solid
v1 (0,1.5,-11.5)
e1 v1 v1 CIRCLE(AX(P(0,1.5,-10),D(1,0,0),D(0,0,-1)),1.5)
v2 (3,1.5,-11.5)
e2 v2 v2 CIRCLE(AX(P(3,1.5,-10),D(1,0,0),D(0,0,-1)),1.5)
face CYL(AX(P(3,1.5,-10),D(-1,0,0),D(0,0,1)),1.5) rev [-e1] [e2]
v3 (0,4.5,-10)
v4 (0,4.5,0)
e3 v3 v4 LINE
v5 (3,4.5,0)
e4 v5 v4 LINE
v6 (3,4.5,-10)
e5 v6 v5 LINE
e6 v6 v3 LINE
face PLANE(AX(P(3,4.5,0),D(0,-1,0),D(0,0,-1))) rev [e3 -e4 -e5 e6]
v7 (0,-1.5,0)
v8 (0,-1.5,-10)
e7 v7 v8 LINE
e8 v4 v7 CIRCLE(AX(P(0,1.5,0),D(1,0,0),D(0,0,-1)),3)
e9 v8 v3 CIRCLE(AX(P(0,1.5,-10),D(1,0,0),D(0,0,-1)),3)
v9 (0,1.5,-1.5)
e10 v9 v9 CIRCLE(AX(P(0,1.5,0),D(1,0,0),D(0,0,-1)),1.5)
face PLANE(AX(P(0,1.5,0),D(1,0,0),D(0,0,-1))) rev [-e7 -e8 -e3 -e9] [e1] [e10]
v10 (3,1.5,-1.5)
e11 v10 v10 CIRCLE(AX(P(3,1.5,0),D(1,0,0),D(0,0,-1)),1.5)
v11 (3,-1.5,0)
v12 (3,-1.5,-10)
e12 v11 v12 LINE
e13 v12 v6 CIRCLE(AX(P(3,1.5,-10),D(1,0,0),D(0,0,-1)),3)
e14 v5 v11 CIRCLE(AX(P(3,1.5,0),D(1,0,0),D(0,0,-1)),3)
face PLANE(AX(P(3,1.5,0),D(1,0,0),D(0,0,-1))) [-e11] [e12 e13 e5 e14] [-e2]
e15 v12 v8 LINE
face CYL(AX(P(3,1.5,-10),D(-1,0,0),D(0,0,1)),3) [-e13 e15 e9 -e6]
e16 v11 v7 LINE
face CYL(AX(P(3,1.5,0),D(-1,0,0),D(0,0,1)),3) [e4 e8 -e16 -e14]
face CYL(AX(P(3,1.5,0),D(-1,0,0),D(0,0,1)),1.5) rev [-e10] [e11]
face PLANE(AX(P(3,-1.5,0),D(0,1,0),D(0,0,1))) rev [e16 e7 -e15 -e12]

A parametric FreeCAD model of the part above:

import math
import FreeCAD as App
import Part
import Sketcher

doc = App.newDocument("Part")
body = doc.addObject("PartDesign::Body", "Body")

# Sketch on YZ plane
sketch1 = body.newObject("Sketcher::SketchObject", "Sketch")
sketch1.AttachmentSupport = (doc.getObject("YZ_Plane"), [""])
sketch1.MapMode = "FlatFace"
sketch1.addGeometry([
    Part.LineSegment(App.Vector(4.5, -10, 0), App.Vector(4.5, 0, 0)),  # 0
    Part.ArcOfCircle(Part.Circle(App.Vector(1.5, 0, 0), App.Vector(0, 0, 1), 3), math.radians(0), math.radians(180)),  # 1
    Part.LineSegment(App.Vector(-1.5, 0, 0), App.Vector(-1.5, -10, 0)),  # 2
    Part.ArcOfCircle(Part.Circle(App.Vector(1.5, -10, 0), App.Vector(0, 0, 1), 3), math.radians(180), math.radians(360)),  # 3
    Part.Circle(App.Vector(1.5, -10, 0), App.Vector(0, 0, 1), 1.5),  # 4
    Part.Circle(App.Vector(1.5, 0, 0), App.Vector(0, 0, 1), 1.5),  # 5
], False)
sketch1.addConstraint([
    Sketcher.Constraint("Tangent", 0, 2, 1, 1),
    Sketcher.Constraint("Tangent", 1, 2, 2, 1),
    Sketcher.Constraint("Tangent", 2, 2, 3, 1),
    Sketcher.Constraint("Tangent", 3, 2, 0, 1),
    Sketcher.Constraint("Vertical", 0),
    Sketcher.Constraint("Vertical", 2),
    Sketcher.Constraint("Coincident", 4, 3, 3, 3),
    Sketcher.Constraint("Coincident", 5, 3, 1, 3),
    Sketcher.Constraint("Equal", 4, 5),
    Sketcher.Constraint("PointOnObject", 1, 3, -1),
    Sketcher.Constraint("Diameter", 4, 3.0),
    Sketcher.Constraint("Radius", 1, 3.0),
    Sketcher.Constraint("DistanceY", 0, 1, 0, 2, 10.0),
    Sketcher.Constraint("DistanceX", -1, 1, 1, 3, 1.5),
])
pad1 = body.newObject("PartDesign::Pad", "Pad")
pad1.Profile = sketch1
pad1.Length = 3

doc.recompute()
